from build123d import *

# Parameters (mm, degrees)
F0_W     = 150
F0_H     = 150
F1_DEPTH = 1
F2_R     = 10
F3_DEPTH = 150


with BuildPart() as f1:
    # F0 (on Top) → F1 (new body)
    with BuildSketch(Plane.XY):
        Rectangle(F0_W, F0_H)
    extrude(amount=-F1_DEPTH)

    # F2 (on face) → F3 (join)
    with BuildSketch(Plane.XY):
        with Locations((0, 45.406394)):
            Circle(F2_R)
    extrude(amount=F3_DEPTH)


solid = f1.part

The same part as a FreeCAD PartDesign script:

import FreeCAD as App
import Part
import Sketcher

doc = App.newDocument("Part")
params = doc.addObject("Spreadsheet::Sheet", "Params")
for row, (alias, value) in enumerate([
    ("sketch1_width", "150 mm"),
    ("pad1_length", "1 mm"),
    ("sketch2_diameter", "20 mm"),
    ("pad2_length", "150 mm"),
], start=1):
    params.set(f"A{row}", alias)
    params.set(f"B{row}", "=" + value)
    params.setAlias(f"B{row}", alias)

body = doc.addObject("PartDesign::Body", "Body")

# Sketch on XY plane
sketch1 = body.newObject("Sketcher::SketchObject", "Sketch")
sketch1.AttachmentSupport = (doc.getObject("XY_Plane"), [""])
sketch1.MapMode = "FlatFace"
sketch1.addGeometry(Part.LineSegment(App.Vector(-75, 75, 0), App.Vector(-75, -75, 0)), False)
sketch1.addGeometry(Part.LineSegment(App.Vector(-75, -75, 0), App.Vector(75, -75, 0)), False)
sketch1.addGeometry(Part.LineSegment(App.Vector(75, -75, 0), App.Vector(75, 75, 0)), False)
sketch1.addGeometry(Part.LineSegment(App.Vector(75, 75, 0), App.Vector(-75, 75, 0)), False)
sketch1.addConstraint(Sketcher.Constraint("Coincident", 0, 2, 1, 1))
sketch1.addConstraint(Sketcher.Constraint("Coincident", 1, 2, 2, 1))
sketch1.addConstraint(Sketcher.Constraint("Coincident", 2, 2, 3, 1))
sketch1.addConstraint(Sketcher.Constraint("Coincident", 3, 2, 0, 1))
sketch1.addConstraint(Sketcher.Constraint("Vertical", 0))
sketch1.addConstraint(Sketcher.Constraint("Horizontal", 1))
sketch1.addConstraint(Sketcher.Constraint("Vertical", 2))
sketch1.addConstraint(Sketcher.Constraint("Horizontal", 3))
sketch1.addConstraint(Sketcher.Constraint("Symmetric", 0, 2, 2, 2, -1, 1))
sketch1.addConstraint(Sketcher.Constraint("Equal", 3, 0))
sketch1.addConstraint(Sketcher.Constraint("DistanceX", 1, 1, 1, 2, 150.0))
sketch1.setExpression("Constraints[10]", "Params.sketch1_width")
pad1 = body.newObject("PartDesign::Pad", "Pad")
pad1.Profile = sketch1
pad1.setExpression("Length", "Params.pad1_length")
pad1.Reversed = True

# Sketch on XY plane
sketch2 = body.newObject("Sketcher::SketchObject", "Sketch001")
sketch2.AttachmentSupport = (doc.getObject("XY_Plane"), [""])
sketch2.MapMode = "FlatFace"
sketch2.addGeometry(Part.Circle(App.Vector(0, 45, 0), App.Vector(0, 0, 1), 10), False)
sketch2.addConstraint(Sketcher.Constraint("PointOnObject", 0, 3, -2))
sketch2.addConstraint(Sketcher.Constraint("Diameter", 0, 20.0))
sketch2.addConstraint(Sketcher.Constraint("DistanceY", -1, 1, 0, 3, 45.406394))
sketch2.setExpression("Constraints[1]", "Params.sketch2_diameter")
pad2 = body.newObject("PartDesign::Pad", "Pad001")
pad2.Profile = sketch2
pad2.setExpression("Length", "Params.pad2_length")

doc.recompute()
